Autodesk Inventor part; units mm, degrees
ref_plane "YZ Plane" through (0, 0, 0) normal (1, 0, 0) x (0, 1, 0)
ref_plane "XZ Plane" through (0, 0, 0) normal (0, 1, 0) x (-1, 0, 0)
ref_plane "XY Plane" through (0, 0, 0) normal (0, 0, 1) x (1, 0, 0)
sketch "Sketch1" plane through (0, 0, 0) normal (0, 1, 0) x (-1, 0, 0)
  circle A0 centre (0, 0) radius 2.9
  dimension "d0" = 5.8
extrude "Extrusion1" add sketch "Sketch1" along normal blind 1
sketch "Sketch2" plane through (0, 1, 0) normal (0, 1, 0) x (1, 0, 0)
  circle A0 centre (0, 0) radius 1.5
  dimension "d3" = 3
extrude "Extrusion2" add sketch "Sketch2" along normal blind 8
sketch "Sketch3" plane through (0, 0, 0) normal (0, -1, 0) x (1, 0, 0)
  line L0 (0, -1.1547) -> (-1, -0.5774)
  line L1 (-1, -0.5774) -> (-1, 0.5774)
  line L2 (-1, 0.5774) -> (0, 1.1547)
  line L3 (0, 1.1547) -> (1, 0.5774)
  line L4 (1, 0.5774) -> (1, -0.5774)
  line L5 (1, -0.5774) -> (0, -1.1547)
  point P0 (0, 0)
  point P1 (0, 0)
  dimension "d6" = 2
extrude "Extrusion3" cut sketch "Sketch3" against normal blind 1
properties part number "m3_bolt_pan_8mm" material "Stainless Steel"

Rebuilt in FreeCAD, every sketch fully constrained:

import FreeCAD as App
import Part
import Sketcher

V = App.Vector


def add_polygon(sketch, points):
    """Adds a closed chain of lines whose ends are joined by coincident constraints."""
    first, n = sketch.GeometryCount, len(points)
    for a, b in zip(points, points[1:] + points[:1]):
        sketch.addGeometry(Part.LineSegment(App.Vector(*a, 0), App.Vector(*b, 0)), False)
    for i in range(n):
        sketch.addConstraint(Sketcher.Constraint("Coincident", first + i, 2, first + (i + 1) % n, 1))

doc = App.newDocument("Part")
body = doc.addObject("PartDesign::Body", "Body")

sketch1 = body.newObject("Sketcher::SketchObject", "Sketch")
sketch1.AttachmentSupport = (doc.getObject("XZ_Plane"), [""])
sketch1.MapMode = "FlatFace"
sketch1.addGeometry(Part.Circle(V(0, 0, 0), V(0, 0, 1), 2.9), False)
sketch1.addConstraint([
    Sketcher.Constraint("Coincident", 0, 3, -1, 1),
    Sketcher.Constraint("Diameter", 0, 5.8),
])
pad1 = body.newObject("PartDesign::Pad", "Pad")
pad1.Profile = sketch1
pad1.Length = 1
pad1.Reversed = True

sketch2 = body.newObject("Sketcher::SketchObject", "Sketch001")
sketch2.AttachmentSupport = (doc.getObject("XZ_Plane"), [""])
sketch2.MapMode = "FlatFace"
sketch2.AttachmentOffset = App.Placement(V(0, 0, -1), App.Rotation())
sketch2.addGeometry(Part.Circle(V(0, 0, 0), V(0, 0, 1), 1.5), False)
sketch2.addConstraint([
    Sketcher.Constraint("Coincident", 0, 3, -1, 1),
    Sketcher.Constraint("Diameter", 0, 3.0),
])
pad2 = body.newObject("PartDesign::Pad", "Pad001")
pad2.Profile = sketch2
pad2.Length = 8
pad2.Reversed = True

sketch3 = body.newObject("Sketcher::SketchObject", "Sketch002")
sketch3.AttachmentSupport = (doc.getObject("XZ_Plane"), [""])
sketch3.MapMode = "FlatFace"
add_polygon(sketch3, [(-1, -0.5774), (0, -1.1547), (1, -0.5774), (1, 0.5774), (0, 1.1547), (-1, 0.5774)])
sketch3.addConstraint([
    Sketcher.Constraint("Vertical", 2),
    Sketcher.Constraint("Vertical", 5),
    Sketcher.Constraint("Symmetric", 0, 2, 3, 2, -1, 1),
    Sketcher.Constraint("Symmetric", 1, 2, 4, 2, -1, 1),
    Sketcher.Constraint("PointOnObject", 0, 2, -2),
    Sketcher.Constraint("Parallel", 0, 3),
    Sketcher.Constraint("Horizontal", 2, 2, 4, 2),
    Sketcher.Constraint("DistanceX", 4, 2, 2, 2, 2.0),
    Sketcher.Constraint("DistanceY", 2, 1, 2, 2, 1.1548),
    Sketcher.Constraint("DistanceY", 0, 2, 2, 2, 1.732),
])
pocket1 = body.newObject("PartDesign::Pocket", "Pocket")
pocket1.Profile = sketch3
pocket1.Length = 1

doc.recompute()
